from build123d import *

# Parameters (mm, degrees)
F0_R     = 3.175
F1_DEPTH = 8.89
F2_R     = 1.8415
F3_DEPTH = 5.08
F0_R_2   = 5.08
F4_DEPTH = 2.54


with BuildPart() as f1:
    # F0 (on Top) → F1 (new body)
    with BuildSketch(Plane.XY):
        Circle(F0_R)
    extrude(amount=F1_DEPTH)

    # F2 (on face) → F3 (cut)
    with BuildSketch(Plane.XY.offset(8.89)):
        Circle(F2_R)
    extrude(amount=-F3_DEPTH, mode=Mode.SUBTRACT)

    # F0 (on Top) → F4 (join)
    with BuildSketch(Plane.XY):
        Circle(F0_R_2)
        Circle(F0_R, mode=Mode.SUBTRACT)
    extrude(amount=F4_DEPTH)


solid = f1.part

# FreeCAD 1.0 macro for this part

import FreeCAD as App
import Part
import Sketcher
Q = App.Units.Quantity

doc = App.newDocument("Part")
body = doc.addObject("PartDesign::Body", "Body")

# Sketch on XY plane
sketch1 = body.newObject("Sketcher::SketchObject", "Sketch")
sketch1.AttachmentSupport = (doc.getObject("XY_Plane"), [""])
sketch1.MapMode = "FlatFace"
sketch1.addGeometry(Part.Circle(App.Vector(0, 0, 0), App.Vector(0, 0, 1), 3.175), False)
sketch1.addConstraint(Sketcher.Constraint("Coincident", 0, 3, -1, 1))
sketch1.addConstraint(Sketcher.Constraint("Diameter", 0, Q("0.25 in")))
pad1 = body.newObject("PartDesign::Pad", "Pad")
pad1.Profile = sketch1
pad1.Length = Q("0.35 in")

# Sketch on XY plane
sketch2 = body.newObject("Sketcher::SketchObject", "Sketch001")
sketch2.AttachmentSupport = (doc.getObject("XY_Plane"), [""])
sketch2.MapMode = "FlatFace"
sketch2.AttachmentOffset = App.Placement(App.Vector(0, 0, 0.35 * 25.4), App.Rotation())
sketch2.addGeometry(Part.Circle(App.Vector(0, 0, 0), App.Vector(0, 0, 1), 1.8415), False)
sketch2.addConstraint(Sketcher.Constraint("Coincident", 0, 3, -1, 1))
sketch2.addConstraint(Sketcher.Constraint("Diameter", 0, Q("0.145 in")))
pocket1 = body.newObject("PartDesign::Pocket", "Pocket")
pocket1.Profile = sketch2
pocket1.Length = Q("0.2 in")

# Sketch on XY plane
sketch3 = body.newObject("Sketcher::SketchObject", "Sketch002")
sketch3.AttachmentSupport = (doc.getObject("XY_Plane"), [""])
sketch3.MapMode = "FlatFace"
sketch3.addGeometry(Part.Circle(App.Vector(0, 0, 0), App.Vector(0, 0, 1), 5.08), False)
sketch3.addGeometry(Part.Circle(App.Vector(0, 0, 0), App.Vector(0, 0, 1), 3.175), False)
sketch3.addConstraint(Sketcher.Constraint("Coincident", 0, 3, -1, 1))
sketch3.addConstraint(Sketcher.Constraint("Coincident", 1, 3, -1, 1))
sketch3.addConstraint(Sketcher.Constraint("Diameter", 0, Q("0.4 in")))
sketch3.addConstraint(Sketcher.Constraint("Diameter", 1, Q("0.25 in")))
pad2 = body.newObject("PartDesign::Pad", "Pad001")
pad2.Profile = sketch3
pad2.Length = Q("0.1 in")

doc.recompute()
